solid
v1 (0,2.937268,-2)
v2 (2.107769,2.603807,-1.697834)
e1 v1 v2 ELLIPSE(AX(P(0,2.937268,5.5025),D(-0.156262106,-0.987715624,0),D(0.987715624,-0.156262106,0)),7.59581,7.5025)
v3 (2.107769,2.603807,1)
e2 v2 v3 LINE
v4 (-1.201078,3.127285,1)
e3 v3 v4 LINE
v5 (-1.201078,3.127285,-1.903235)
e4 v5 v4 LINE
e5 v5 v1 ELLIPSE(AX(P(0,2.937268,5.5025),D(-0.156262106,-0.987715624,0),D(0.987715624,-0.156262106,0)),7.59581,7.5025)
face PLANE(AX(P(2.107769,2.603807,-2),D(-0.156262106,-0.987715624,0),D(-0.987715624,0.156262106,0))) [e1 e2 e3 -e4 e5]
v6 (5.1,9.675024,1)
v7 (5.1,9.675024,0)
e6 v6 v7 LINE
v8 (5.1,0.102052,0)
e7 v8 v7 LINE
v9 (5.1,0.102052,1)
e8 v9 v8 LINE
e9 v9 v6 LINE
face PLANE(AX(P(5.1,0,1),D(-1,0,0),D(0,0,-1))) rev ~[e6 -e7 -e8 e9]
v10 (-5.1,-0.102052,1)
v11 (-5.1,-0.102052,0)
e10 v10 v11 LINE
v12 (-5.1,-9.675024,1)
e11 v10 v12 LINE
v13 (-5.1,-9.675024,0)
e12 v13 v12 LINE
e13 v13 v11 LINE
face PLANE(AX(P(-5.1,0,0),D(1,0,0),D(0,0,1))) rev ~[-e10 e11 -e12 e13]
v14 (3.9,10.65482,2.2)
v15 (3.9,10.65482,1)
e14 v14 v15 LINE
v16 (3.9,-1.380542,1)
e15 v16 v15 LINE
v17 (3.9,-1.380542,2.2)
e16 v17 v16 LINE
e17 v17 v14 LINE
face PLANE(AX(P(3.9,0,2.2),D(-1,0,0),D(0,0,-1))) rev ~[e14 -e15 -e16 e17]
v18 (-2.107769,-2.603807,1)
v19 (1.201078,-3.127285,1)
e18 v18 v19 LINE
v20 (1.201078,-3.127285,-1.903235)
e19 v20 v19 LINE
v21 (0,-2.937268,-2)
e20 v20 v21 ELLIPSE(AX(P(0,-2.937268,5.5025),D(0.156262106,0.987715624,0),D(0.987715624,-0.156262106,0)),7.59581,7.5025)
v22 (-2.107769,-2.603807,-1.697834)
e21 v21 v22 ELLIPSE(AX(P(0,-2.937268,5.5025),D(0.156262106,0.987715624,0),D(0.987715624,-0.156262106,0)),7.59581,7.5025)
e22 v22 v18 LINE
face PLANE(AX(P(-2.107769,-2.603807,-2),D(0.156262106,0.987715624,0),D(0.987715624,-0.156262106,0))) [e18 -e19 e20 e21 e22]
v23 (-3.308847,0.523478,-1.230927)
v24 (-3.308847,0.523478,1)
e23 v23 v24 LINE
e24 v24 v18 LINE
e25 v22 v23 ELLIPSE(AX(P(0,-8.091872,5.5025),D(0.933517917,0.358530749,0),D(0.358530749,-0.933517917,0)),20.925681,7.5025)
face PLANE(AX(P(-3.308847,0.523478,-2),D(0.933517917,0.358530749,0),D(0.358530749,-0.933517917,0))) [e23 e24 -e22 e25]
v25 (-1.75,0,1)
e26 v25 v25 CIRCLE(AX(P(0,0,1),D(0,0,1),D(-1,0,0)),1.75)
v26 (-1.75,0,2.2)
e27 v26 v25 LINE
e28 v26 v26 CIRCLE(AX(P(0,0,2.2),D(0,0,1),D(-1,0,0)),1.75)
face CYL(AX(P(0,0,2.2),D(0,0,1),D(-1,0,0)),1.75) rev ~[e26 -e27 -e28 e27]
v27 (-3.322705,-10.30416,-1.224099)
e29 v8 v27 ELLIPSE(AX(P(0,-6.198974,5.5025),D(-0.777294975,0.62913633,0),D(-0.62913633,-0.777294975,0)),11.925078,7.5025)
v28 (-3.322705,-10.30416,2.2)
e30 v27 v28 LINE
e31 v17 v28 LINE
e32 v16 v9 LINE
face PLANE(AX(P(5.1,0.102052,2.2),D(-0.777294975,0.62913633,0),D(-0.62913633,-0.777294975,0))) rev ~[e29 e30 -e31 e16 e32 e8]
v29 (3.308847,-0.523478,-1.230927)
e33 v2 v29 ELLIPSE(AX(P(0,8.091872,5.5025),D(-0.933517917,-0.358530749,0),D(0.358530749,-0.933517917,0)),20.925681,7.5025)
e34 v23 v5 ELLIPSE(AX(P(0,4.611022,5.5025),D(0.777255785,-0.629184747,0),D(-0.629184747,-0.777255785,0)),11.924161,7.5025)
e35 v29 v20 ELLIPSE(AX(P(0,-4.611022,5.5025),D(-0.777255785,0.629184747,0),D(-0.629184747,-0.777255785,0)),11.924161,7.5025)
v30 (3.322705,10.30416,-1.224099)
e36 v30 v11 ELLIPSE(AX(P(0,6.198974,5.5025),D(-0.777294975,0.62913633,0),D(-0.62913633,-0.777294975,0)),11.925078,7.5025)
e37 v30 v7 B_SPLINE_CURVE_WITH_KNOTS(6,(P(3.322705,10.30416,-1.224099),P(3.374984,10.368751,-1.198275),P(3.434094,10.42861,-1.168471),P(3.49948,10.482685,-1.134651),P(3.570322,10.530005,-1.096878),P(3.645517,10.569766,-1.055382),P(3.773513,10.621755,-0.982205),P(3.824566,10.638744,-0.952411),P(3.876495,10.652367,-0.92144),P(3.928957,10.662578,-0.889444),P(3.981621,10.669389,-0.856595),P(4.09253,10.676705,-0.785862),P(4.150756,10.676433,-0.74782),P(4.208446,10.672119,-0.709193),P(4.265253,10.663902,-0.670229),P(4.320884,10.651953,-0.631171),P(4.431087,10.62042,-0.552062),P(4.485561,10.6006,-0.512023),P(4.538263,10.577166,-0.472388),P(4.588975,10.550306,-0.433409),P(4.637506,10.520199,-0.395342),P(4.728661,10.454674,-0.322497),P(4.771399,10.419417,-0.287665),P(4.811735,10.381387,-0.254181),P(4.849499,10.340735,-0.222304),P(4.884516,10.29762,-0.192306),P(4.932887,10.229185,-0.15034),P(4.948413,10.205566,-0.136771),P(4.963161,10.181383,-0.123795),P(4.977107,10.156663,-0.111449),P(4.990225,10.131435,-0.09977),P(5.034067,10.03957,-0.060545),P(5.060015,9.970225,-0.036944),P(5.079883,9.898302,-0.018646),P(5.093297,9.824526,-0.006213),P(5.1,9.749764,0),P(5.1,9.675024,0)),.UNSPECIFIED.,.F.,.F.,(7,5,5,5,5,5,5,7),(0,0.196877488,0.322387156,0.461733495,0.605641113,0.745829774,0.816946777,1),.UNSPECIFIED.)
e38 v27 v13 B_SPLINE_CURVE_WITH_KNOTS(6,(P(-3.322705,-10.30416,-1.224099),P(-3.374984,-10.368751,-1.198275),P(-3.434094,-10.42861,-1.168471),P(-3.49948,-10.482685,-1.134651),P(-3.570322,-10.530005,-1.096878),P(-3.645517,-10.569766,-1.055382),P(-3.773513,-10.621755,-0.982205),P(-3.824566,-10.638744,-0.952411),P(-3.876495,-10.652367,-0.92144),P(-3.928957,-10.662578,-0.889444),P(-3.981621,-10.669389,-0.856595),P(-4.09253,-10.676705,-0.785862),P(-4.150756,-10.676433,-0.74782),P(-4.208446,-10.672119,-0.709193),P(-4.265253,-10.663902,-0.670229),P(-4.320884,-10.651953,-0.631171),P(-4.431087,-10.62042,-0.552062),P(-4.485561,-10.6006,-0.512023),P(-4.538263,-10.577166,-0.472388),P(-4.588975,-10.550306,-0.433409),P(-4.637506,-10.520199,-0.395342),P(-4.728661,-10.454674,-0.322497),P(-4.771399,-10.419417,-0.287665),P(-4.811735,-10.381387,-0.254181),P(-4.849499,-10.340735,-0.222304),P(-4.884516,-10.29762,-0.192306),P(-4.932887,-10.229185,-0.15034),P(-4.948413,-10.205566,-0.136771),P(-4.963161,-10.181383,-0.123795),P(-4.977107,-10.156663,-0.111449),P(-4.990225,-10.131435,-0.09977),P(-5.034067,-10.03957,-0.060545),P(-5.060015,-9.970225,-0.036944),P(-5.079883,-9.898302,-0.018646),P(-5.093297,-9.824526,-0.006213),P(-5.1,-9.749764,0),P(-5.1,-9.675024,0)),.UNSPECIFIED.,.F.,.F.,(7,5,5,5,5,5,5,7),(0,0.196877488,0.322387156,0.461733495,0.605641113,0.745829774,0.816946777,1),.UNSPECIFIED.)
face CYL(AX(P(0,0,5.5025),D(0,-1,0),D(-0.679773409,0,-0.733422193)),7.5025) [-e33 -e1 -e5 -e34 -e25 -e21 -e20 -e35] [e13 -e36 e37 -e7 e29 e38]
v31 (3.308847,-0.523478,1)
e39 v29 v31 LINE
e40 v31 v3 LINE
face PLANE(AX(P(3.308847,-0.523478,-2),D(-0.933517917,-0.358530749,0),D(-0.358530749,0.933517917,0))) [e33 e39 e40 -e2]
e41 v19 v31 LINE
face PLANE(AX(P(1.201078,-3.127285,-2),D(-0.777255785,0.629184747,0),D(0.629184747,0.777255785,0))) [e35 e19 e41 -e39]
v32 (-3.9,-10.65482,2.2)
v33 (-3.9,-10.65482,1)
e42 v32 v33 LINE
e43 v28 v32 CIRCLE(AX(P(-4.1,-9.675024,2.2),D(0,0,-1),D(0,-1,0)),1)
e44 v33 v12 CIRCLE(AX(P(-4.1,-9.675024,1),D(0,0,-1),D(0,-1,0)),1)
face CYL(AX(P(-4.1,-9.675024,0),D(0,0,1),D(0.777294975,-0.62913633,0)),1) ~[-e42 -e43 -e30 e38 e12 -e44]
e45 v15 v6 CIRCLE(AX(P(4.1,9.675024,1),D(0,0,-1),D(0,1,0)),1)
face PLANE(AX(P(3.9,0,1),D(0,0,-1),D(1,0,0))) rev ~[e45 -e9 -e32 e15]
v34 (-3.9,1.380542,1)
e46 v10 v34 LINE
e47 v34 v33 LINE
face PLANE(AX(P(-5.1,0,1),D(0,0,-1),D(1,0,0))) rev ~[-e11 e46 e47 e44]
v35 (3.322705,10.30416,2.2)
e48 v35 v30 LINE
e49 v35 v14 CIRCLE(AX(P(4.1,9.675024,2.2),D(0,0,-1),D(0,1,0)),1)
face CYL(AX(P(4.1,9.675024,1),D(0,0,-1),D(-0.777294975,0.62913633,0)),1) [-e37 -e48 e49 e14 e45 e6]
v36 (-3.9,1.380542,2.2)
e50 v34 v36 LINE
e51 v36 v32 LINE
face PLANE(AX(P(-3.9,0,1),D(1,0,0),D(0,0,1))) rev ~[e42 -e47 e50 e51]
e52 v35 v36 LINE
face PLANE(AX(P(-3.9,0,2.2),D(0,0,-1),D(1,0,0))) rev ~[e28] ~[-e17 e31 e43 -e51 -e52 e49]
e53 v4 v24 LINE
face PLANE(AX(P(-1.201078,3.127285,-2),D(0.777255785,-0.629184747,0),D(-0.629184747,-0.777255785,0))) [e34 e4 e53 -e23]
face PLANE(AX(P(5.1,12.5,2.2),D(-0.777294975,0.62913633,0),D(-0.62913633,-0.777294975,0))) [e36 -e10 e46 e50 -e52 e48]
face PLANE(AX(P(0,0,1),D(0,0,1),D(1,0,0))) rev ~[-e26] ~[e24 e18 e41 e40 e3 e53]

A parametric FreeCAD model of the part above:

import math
import FreeCAD as App
import Part
import Sketcher

V = App.Vector
Q = App.Units.Quantity


def edges_at(feature, points):
    """Names of the edges that pass closest to the given points."""
    edges = feature.Shape.Edges
    near = lambda p: min(range(len(edges)), key=lambda i: edges[i].distToShape(Part.Vertex(*p))[0])
    return sorted({f"Edge{near(p) + 1}" for p in points})

doc = App.newDocument("Part")
body = doc.addObject("PartDesign::Body", "Body")

sketch1 = body.newObject("Sketcher::SketchObject", "Sketch")
sketch1.AttachmentSupport = (doc.getObject("XZ_Plane"), [""])
sketch1.MapMode = "FlatFace"
sketch1.addGeometry(Part.LineSegment(V(3.9, 2.2, 0), V(-3.9, 2.2, 0)), False)
sketch1.addGeometry(Part.LineSegment(V(-3.9, 2.2, 0), V(-3.9, 1, 0)), False)
sketch1.addGeometry(Part.LineSegment(V(-3.9, 1, 0), V(-5.1, 1, 0)), False)
sketch1.addGeometry(Part.LineSegment(V(-5.1, 1, 0), V(-5.1, 0, 0)), False)
sketch1.addGeometry(Part.ArcOfCircle(Part.Circle(V(0, 5.5, 0), V(0, 0, 1), 7.5), math.radians(-133), math.radians(-47)), False)
sketch1.addGeometry(Part.LineSegment(V(5.1, 0, 0), V(5.1, 1, 0)), False)
sketch1.addGeometry(Part.LineSegment(V(5.1, 1, 0), V(3.9, 1, 0)), False)
sketch1.addGeometry(Part.LineSegment(V(3.9, 1, 0), V(3.9, 2.2, 0)), False)
sketch1.addConstraint(Sketcher.Constraint("Coincident", 0, 2, 1, 1))
sketch1.addConstraint(Sketcher.Constraint("Coincident", 1, 2, 2, 1))
sketch1.addConstraint(Sketcher.Constraint("Coincident", 2, 2, 3, 1))
sketch1.addConstraint(Sketcher.Constraint("Coincident", 3, 2, 4, 1))
sketch1.addConstraint(Sketcher.Constraint("Coincident", 4, 2, 5, 1))
sketch1.addConstraint(Sketcher.Constraint("Coincident", 5, 2, 6, 1))
sketch1.addConstraint(Sketcher.Constraint("Coincident", 6, 2, 7, 1))
sketch1.addConstraint(Sketcher.Constraint("Coincident", 7, 2, 0, 1))
sketch1.addConstraint(Sketcher.Constraint("Horizontal", 0))
sketch1.addConstraint(Sketcher.Constraint("Vertical", 1))
sketch1.addConstraint(Sketcher.Constraint("Horizontal", 2))
sketch1.addConstraint(Sketcher.Constraint("Vertical", 3))
sketch1.addConstraint(Sketcher.Constraint("Vertical", 5))
sketch1.addConstraint(Sketcher.Constraint("Horizontal", 6))
sketch1.addConstraint(Sketcher.Constraint("Vertical", 7))
sketch1.addConstraint(Sketcher.Constraint("Symmetric", 3, 2, 4, 2, -1, 1))
sketch1.addConstraint(Sketcher.Constraint("Symmetric", 1, 2, 6, 2, -2))
sketch1.addConstraint(Sketcher.Constraint("PointOnObject", 4, 3, -2))
sketch1.addConstraint(Sketcher.Constraint("Equal", 6, 1))
sketch1.addConstraint(Sketcher.Constraint("DistanceY", 3, 2, 3, 1, 1.0))
sketch1.addConstraint(Sketcher.Constraint("DistanceX", 0, 2, 0, 1, 7.8))
sketch1.addConstraint(Sketcher.Constraint("DistanceX", 2, 2, 2, 1, 1.2))
sketch1.addConstraint(Sketcher.Constraint("Radius", 4, 7.5025))
pad1 = body.newObject("PartDesign::Pad", "Pad")
pad1.Profile = sketch1
pad1.Length = 25
pad1.Midplane = True

sketch2 = body.newObject("Sketcher::SketchObject", "Sketch001")
sketch2.AttachmentSupport = (doc.getObject("XY_Plane"), [""])
sketch2.MapMode = "FlatFace"
sketch2.AttachmentOffset = App.Placement(V(0, 0, 2.2), App.Rotation())
sketch2.addGeometry(Part.LineSegment(V(5, 0, 0), V(-5, -12, 0)), False)
sketch2.addGeometry(Part.LineSegment(V(-5, -12, 0), V(5, -12, 0)), False)
sketch2.addGeometry(Part.LineSegment(V(5, -12, 0), V(5, 0, 0)), False)
sketch2.addGeometry(Part.LineSegment(V(-5, 0, 0), V(5, 12, 0)), False)
sketch2.addGeometry(Part.LineSegment(V(5, 12, 0), V(-5, 12, 0)), False)
sketch2.addGeometry(Part.LineSegment(V(-5, 12, 0), V(-5, 0, 0)), False)
sketch2.addConstraint(Sketcher.Constraint("Coincident", 0, 2, 1, 1))
sketch2.addConstraint(Sketcher.Constraint("Coincident", 1, 2, 2, 1))
sketch2.addConstraint(Sketcher.Constraint("Coincident", 2, 2, 0, 1))
sketch2.addConstraint(Sketcher.Constraint("Coincident", 3, 2, 4, 1))
sketch2.addConstraint(Sketcher.Constraint("Coincident", 4, 2, 5, 1))
sketch2.addConstraint(Sketcher.Constraint("Coincident", 5, 2, 3, 1))
sketch2.addConstraint(Sketcher.Constraint("Horizontal", 1))
sketch2.addConstraint(Sketcher.Constraint("Vertical", 2))
sketch2.addConstraint(Sketcher.Constraint("Horizontal", 4))
sketch2.addConstraint(Sketcher.Constraint("Vertical", 5))
sketch2.addConstraint(Sketcher.Constraint("Symmetric", 0, 2, 3, 2, -1, 1))
sketch2.addConstraint(Sketcher.Constraint("Symmetric", 2, 2, 5, 2, -1, 1))
sketch2.addConstraint(Sketcher.Constraint("Vertical", 2, 2, 3, 2))
sketch2.addConstraint(Sketcher.Constraint("DistanceX", 1, 1, 1, 2, 10.2))
sketch2.addConstraint(Sketcher.Constraint("DistanceY", 1, 2, 3, 2, 25.0))
sketch2.addConstraint(Sketcher.Constraint("DistanceY", 2, 1, 2, 2, 12.602052))
pocket1 = body.newObject("PartDesign::Pocket", "Pocket")
pocket1.Profile = sketch2
pocket1.Type = "ThroughAll"

sketch3 = body.newObject("Sketcher::SketchObject", "Sketch002")
sketch3.AttachmentSupport = (doc.getObject("XY_Plane"), [""])
sketch3.MapMode = "FlatFace"
sketch3.AttachmentOffset = App.Placement(V(0, 0, 2.2), App.Rotation())
sketch3.addGeometry(Part.Circle(V(0, 0, 0), V(0, 0, 1), 1.8), False)
sketch3.addConstraint(Sketcher.Constraint("Coincident", 0, 3, -1, 1))
sketch3.addConstraint(Sketcher.Constraint("Diameter", 0, 3.5))
pocket2 = body.newObject("PartDesign::Pocket", "Pocket001")
pocket2.Profile = sketch3
pocket2.Type = "ThroughAll"

sketch4 = body.newObject("Sketcher::SketchObject", "Sketch003")
sketch4.AttachmentSupport = (doc.getObject("XY_Plane"), [""])
sketch4.MapMode = "FlatFace"
sketch4.AttachmentOffset = App.Placement(V(0, 0, -2), App.Rotation())
sketch4.addGeometry(Part.LineSegment(V(3.3, -0.5, 0), V(2.1, 2.6, 0)), False)
sketch4.addGeometry(Part.LineSegment(V(2.1, 2.6, 0), V(-1.2, 3.1, 0)), False)
sketch4.addGeometry(Part.LineSegment(V(-1.2, 3.1, 0), V(-3.3, 0.5, 0)), False)
sketch4.addGeometry(Part.LineSegment(V(-3.3, 0.5, 0), V(-2.1, -2.6, 0)), False)
sketch4.addGeometry(Part.LineSegment(V(-2.1, -2.6, 0), V(1.2, -3.1, 0)), False)
sketch4.addGeometry(Part.LineSegment(V(1.2, -3.1, 0), V(3.3, -0.5, 0)), False)
sketch4.addConstraint(Sketcher.Constraint("Coincident", 0, 2, 1, 1))
sketch4.addConstraint(Sketcher.Constraint("Coincident", 1, 2, 2, 1))
sketch4.addConstraint(Sketcher.Constraint("Coincident", 2, 2, 3, 1))
sketch4.addConstraint(Sketcher.Constraint("Coincident", 3, 2, 4, 1))
sketch4.addConstraint(Sketcher.Constraint("Coincident", 4, 2, 5, 1))
sketch4.addConstraint(Sketcher.Constraint("Coincident", 5, 2, 0, 1))
sketch4.addConstraint(Sketcher.Constraint("Symmetric", 0, 2, 3, 2, -1, 1))
sketch4.addConstraint(Sketcher.Constraint("Symmetric", 1, 2, 4, 2, -1, 1))
sketch4.addConstraint(Sketcher.Constraint("Symmetric", 2, 2, 5, 2, -1, 1))
sketch4.addConstraint(Sketcher.Constraint("Equal", 0, 1))
sketch4.addConstraint(Sketcher.Constraint("Equal", 1, 2))
sketch4.addConstraint(Sketcher.Constraint("Angle", 0, Q("111.009992 deg")))
sketch4.addConstraint(Sketcher.Constraint("Angle", 1, Q("171.009998 deg")))
sketch4.addConstraint(Sketcher.Constraint("Angle", 2, Q("-128.99 deg")))
sketch4.addConstraint(Sketcher.Constraint("Distance", 0, 3.35))
pocket3 = body.newObject("PartDesign::Pocket", "Pocket002")
pocket3.Profile = sketch4
pocket3.Length = 3
pocket3.Reversed = True
doc.recompute()

fillet = body.newObject("PartDesign::Fillet", "Fillet")
fillet.Base = (pocket3, edges_at(pocket3, [(5.1, 12.5, 0.5), (-5.1, -12.5, 0.5)]))
fillet.Radius = 1

doc.recompute()
